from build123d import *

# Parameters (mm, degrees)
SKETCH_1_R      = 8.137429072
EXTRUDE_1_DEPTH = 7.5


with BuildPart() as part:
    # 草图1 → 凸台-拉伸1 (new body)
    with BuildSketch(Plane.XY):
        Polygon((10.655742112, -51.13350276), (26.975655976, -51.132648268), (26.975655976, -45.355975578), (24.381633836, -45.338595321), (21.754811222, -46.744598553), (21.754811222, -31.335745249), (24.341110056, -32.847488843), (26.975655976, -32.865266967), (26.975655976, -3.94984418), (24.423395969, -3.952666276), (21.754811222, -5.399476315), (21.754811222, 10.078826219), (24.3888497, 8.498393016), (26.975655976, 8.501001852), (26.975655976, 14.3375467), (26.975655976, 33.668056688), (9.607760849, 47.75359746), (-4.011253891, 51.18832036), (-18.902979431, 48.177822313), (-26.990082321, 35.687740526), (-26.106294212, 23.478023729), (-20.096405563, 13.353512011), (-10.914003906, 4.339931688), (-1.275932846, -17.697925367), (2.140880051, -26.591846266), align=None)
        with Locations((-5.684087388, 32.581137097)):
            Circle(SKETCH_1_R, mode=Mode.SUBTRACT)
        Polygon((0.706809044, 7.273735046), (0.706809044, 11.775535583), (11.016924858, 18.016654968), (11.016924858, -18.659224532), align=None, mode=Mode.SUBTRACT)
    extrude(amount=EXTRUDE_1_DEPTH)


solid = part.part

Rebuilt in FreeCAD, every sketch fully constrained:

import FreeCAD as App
import Part
import Sketcher
Q = App.Units.Quantity


def add_polygon(sketch, points):
    """Adds a closed chain of lines whose ends are joined by coincident constraints."""
    first, n = sketch.GeometryCount, len(points)
    for a, b in zip(points, points[1:] + points[:1]):
        sketch.addGeometry(Part.LineSegment(App.Vector(*a, 0), App.Vector(*b, 0)), False)
    for i in range(n):
        sketch.addConstraint(Sketcher.Constraint("Coincident", first + i, 2, first + (i + 1) % n, 1))

doc = App.newDocument("Part")
body = doc.addObject("PartDesign::Body", "Body")

# Sketch on XY plane
sketch1 = doc.addObject("Sketcher::SketchObject", "Sketch")
body.addObject(sketch1)
sketch1.AttachmentSupport = (doc.XY_Plane, [""])
sketch1.MapMode = "FlatFace"
add_polygon(sketch1, [(10.655742, -51.133503), (26.975656, -51.132648), (26.975656, -45.355976), (24.381634, -45.338595), (21.754811, -46.744599), (21.754811, -31.335745), (24.34111, -32.847489), (26.975656, -32.865267), (26.975656, -3.949844), (24.423396, -3.952666), (21.754811, -5.399476), (21.754811, 10.078826), (24.38885, 8.498393), (26.975656, 8.501002), (26.975656, 33.668057), (9.607761, 47.753597), (-4.011254, 51.18832), (-18.902979, 48.177822), (-26.990082, 35.687741), (-26.106294, 23.478024), (-20.096406, 13.353512), (-10.914004, 4.339932), (-1.275933, -17.697925), (2.14088, -26.591846)])  # lines 0-23
add_polygon(sketch1, [(11.016925, -18.659225), (0.706809, 7.273735), (0.706809, 11.775536), (11.016925, 18.016655)])  # lines 24-27
sketch1.addGeometry(Part.Circle(App.Vector(-5.684087, 32.581137, 0), App.Vector(0, 0, 1), 8.137429), False)  # 28
sketch1.addConstraint([
    Sketcher.Constraint("Vertical", 1),
    Sketcher.Constraint("Vertical", 4),
    Sketcher.Constraint("Vertical", 7),
    Sketcher.Constraint("Vertical", 10),
    Sketcher.Constraint("Vertical", 13),
    Sketcher.Constraint("Vertical", 25),
    Sketcher.Constraint("Vertical", 27),
    Sketcher.Constraint("Vertical", 1, 2, 6, 2),
    Sketcher.Constraint("Vertical", 4, 2, 9, 2),
    Sketcher.Constraint("Vertical", 7, 2, 12, 2),
    Sketcher.Constraint("Diameter", 28, Q("16.274858 mm")),
    Sketcher.Constraint("DistanceY", 25, 1, 25, 2, Q("4.501801 mm")),
    Sketcher.Constraint("DistanceY", -1, 1, 12, 2, Q("8.501002 mm")),
    Sketcher.Constraint("DistanceY", 27, 2, 27, 1, Q("36.67588 mm")),
    Sketcher.Constraint("DistanceY", 3, 2, -1, 1, Q("46.744599 mm")),
    Sketcher.Constraint("DistanceX", 28, 3, 3, 2, Q("27.438899 mm")),
    Sketcher.Constraint("DistanceX", 4, 2, 5, 2, Q("2.586299 mm")),
    Sketcher.Constraint("DistanceY", 4, 2, 7, 2, Q("27.385901 mm")),
    Sketcher.Constraint("DistanceY", 6, 2, 8, 2, Q("28.912601 mm")),
    Sketcher.Constraint("DistanceY", 7, 2, 13, 2, Q("37.617901 mm")),
    Sketcher.Constraint("DistanceY", 16, 2, 15, 2, Q("3.010498 mm")),
    Sketcher.Constraint("DistanceY", 18, 2, 16, 2, Q("24.699799 mm")),
    Sketcher.Constraint("DistanceX", 19, 2, 20, 2, Q("9.182402 mm")),
    Sketcher.Constraint("DistanceY", 4, 2, 22, 2, Q("4.743899 mm")),
    Sketcher.Constraint("DistanceY", 25, 2, 28, 3, Q("20.805602 mm")),
    Sketcher.Constraint("DistanceY", 27, 2, 21, 2, Q("0.961299 mm")),
    Sketcher.Constraint("Distance", 2, Q("2.59408 mm")),
    Sketcher.Constraint("Distance", 8, Q("2.552262 mm")),
    Sketcher.Constraint("Distance", 16, Q("15.192978 mm")),
    Sketcher.Constraint("Distance", 17, Q("14.87963 mm")),
    Sketcher.Constraint("Distance", 18, Q("12.241661 mm")),
    Sketcher.Constraint("Distance", 19, Q("11.773891 mm")),
    Sketcher.Constraint("Distance", 23, Q("25.976832 mm")),
    Sketcher.Constraint("Distance", 24, Q("27.907291 mm")),
    Sketcher.Constraint("DistanceY", 1, 1, 1, 2, Q("5.776673 mm")),
    Sketcher.Constraint("DistanceY", 4, 1, 4, 2, Q("15.408853 mm")),
    Sketcher.Constraint("DistanceY", 7, 1, 7, 2, Q("28.915423 mm")),
    Sketcher.Constraint("DistanceY", 10, 1, 10, 2, Q("15.478303 mm")),
    Sketcher.Constraint("DistanceY", 0, 2, -1, 1, Q("51.132648 mm")),
    Sketcher.Constraint("DistanceX", -1, 1, 3, 2, Q("21.754811 mm")),
    Sketcher.Constraint("DistanceY", 5, 2, -1, 1, Q("32.847489 mm")),
    Sketcher.Constraint("DistanceX", -1, 1, 11, 2, Q("24.38885 mm")),
    Sketcher.Constraint("DistanceX", -1, 1, 14, 2, Q("9.607761 mm")),
    Sketcher.Constraint("DistanceY", -1, 1, 15, 2, Q("51.18832 mm")),
    Sketcher.Constraint("DistanceX", 16, 2, -1, 1, Q("18.902979 mm")),
    Sketcher.Constraint("DistanceY", -1, 1, 17, 2, Q("35.687741 mm")),
    Sketcher.Constraint("DistanceY", -1, 1, 20, 2, Q("4.339932 mm")),
    Sketcher.Constraint("DistanceX", -1, 1, 22, 2, Q("2.14088 mm")),
    Sketcher.Constraint("DistanceX", -1, 1, 24, 2, Q("0.706809 mm")),
    Sketcher.Constraint("DistanceY", 1, 2, 2, 2, Q("0.01738 mm")),
    Sketcher.Constraint("DistanceX", 28, 3, 2, 2, Q("30.065721 mm")),
    Sketcher.Constraint("DistanceY", 9, 2, 8, 2, Q("1.44681 mm")),
    Sketcher.Constraint("DistanceY", 10, 2, 28, 3, Q("22.502311 mm")),
    Sketcher.Constraint("DistanceY", 8, 2, 11, 2, Q("12.451059 mm")),
    Sketcher.Constraint("DistanceY", 28, 3, 14, 2, Q("15.17246 mm")),
    Sketcher.Constraint("DistanceX", 18, 2, 19, 2, Q("6.009889 mm")),
    Sketcher.Constraint("DistanceX", 20, 2, 21, 2, Q("9.638071 mm")),
    Sketcher.Constraint("DistanceY", 21, 2, 9, 2, Q("12.298449 mm")),
    Sketcher.Constraint("DistanceX", 23, 2, 3, 2, Q("11.099069 mm")),
])
pad1 = doc.addObject("PartDesign::Pad", "Pad")
body.addObject(pad1)
pad1.Profile = sketch1
pad1.Length = 7.5

doc.recompute()
